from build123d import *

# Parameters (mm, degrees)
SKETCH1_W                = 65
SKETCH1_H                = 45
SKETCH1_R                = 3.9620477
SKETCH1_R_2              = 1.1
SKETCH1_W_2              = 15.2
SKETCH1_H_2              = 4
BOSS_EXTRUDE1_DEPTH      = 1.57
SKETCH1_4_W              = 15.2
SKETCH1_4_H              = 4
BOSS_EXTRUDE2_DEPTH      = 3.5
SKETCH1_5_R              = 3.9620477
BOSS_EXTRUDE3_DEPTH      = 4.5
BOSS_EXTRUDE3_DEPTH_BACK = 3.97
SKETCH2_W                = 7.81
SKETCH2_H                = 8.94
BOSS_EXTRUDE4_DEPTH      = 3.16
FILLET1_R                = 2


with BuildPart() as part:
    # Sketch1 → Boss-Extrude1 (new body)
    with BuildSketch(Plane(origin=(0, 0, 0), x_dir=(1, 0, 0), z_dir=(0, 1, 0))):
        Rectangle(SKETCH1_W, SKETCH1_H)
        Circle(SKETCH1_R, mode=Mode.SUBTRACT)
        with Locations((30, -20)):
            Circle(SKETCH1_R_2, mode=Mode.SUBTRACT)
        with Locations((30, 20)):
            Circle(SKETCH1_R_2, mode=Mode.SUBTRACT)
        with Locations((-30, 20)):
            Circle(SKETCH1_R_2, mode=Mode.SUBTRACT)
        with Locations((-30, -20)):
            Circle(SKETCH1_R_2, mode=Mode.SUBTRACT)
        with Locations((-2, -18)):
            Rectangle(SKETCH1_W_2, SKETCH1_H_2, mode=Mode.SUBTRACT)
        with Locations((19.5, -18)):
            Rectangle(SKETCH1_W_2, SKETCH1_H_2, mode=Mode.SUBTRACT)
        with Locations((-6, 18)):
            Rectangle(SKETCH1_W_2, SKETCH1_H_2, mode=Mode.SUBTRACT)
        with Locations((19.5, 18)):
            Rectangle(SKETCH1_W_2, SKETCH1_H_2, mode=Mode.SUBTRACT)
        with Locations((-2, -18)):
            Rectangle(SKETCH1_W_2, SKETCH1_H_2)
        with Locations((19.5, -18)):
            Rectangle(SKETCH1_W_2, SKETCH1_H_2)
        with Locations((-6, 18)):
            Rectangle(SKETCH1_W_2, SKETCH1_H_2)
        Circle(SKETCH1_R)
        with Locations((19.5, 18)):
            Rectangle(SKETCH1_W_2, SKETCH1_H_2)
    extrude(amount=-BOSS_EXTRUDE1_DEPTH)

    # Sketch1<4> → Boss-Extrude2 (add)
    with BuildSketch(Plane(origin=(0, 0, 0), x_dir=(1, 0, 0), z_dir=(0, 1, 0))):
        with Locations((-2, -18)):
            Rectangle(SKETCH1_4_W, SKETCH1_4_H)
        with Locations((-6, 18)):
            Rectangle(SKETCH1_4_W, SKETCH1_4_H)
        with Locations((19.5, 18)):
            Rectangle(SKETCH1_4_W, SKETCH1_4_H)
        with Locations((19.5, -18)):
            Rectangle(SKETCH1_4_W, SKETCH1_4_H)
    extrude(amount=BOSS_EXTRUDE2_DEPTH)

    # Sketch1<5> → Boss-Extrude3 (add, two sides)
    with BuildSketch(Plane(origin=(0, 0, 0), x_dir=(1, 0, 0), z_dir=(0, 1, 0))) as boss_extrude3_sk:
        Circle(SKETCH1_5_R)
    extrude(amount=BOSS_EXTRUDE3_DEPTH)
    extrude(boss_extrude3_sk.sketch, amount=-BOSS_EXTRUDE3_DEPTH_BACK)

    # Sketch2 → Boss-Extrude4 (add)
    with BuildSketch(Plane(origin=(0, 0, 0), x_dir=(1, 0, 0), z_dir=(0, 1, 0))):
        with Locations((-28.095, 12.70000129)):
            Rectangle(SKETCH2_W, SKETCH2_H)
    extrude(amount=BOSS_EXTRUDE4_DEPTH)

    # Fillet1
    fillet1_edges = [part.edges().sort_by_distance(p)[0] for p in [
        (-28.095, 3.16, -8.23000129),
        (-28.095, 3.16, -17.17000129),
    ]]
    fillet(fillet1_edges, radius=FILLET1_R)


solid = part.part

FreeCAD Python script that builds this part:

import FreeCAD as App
import Part
import Sketcher

V = App.Vector


def edges_at(feature, points):
    """Names of the edges that pass closest to the given points."""
    edges = feature.Shape.Edges
    near = lambda p: min(range(len(edges)), key=lambda i: edges[i].distToShape(Part.Vertex(*p))[0])
    return sorted({f"Edge{near(p) + 1}" for p in points})


def add_polygon(sketch, points):
    """Adds a closed chain of lines whose ends are joined by coincident constraints."""
    first, n = sketch.GeometryCount, len(points)
    for a, b in zip(points, points[1:] + points[:1]):
        sketch.addGeometry(Part.LineSegment(App.Vector(*a, 0), App.Vector(*b, 0)), False)
    for i in range(n):
        sketch.addConstraint(Sketcher.Constraint("Coincident", first + i, 2, first + (i + 1) % n, 1))

doc = App.newDocument("Part")
params = doc.addObject("Spreadsheet::Sheet", "Params")
for row, (alias, value) in enumerate([
    ("sketch1_diameter", "2.2 mm"),
    ("sketch1_width", "65 mm"),
    ("sketch1_height", "45 mm"),
    ("pad1_length", "1.57 mm"),
    ("sketch2_height", "4 mm"),
    ("sketch2_width", "15.2 mm"),
    ("pad2_length", "3.5 mm"),
    ("pad3_length", "4.5 mm"),
    ("pad3_length2", "3.97 mm"),
    ("sketch4_width", "7.81 mm"),
    ("sketch4_height", "8.94 mm"),
    ("pad4_length", "3.16 mm"),
    ("fillet_radius", "2 mm"),
], start=1):
    params.set(f"A{row}", alias)
    params.set(f"B{row}", "=" + value)
    params.setAlias(f"B{row}", alias)

body = doc.addObject("PartDesign::Body", "Body")

sketch1 = body.newObject("Sketcher::SketchObject", "Sketch")
sketch1.AttachmentSupport = (doc.getObject("XZ_Plane"), [""])
sketch1.MapMode = "FlatFace"
add_polygon(sketch1, [(-32.5, -22.5), (-32.5, 22.5), (32.5, 22.5), (32.5, -22.5)])
sketch1.addGeometry(Part.Circle(V(-30, 20, 0), V(0, 0, 1), 1.1), False)
sketch1.addGeometry(Part.Circle(V(30, 20, 0), V(0, 0, 1), 1.1), False)
sketch1.addGeometry(Part.Circle(V(-30, -20, 0), V(0, 0, 1), 1.1), False)
sketch1.addGeometry(Part.Circle(V(30, -20, 0), V(0, 0, 1), 1.1), False)
sketch1.addConstraint(Sketcher.Constraint("Vertical", 0))
sketch1.addConstraint(Sketcher.Constraint("Horizontal", 1))
sketch1.addConstraint(Sketcher.Constraint("Vertical", 2))
sketch1.addConstraint(Sketcher.Constraint("Horizontal", 3))
sketch1.addConstraint(Sketcher.Constraint("Equal", 4, 5))
sketch1.addConstraint(Sketcher.Constraint("Equal", 5, 6))
sketch1.addConstraint(Sketcher.Constraint("Equal", 6, 7))
sketch1.addConstraint(Sketcher.Constraint("Symmetric", 5, 3, 6, 3, -1, 1))
sketch1.addConstraint(Sketcher.Constraint("Symmetric", 4, 3, 7, 3, -1, 1))
sketch1.addConstraint(Sketcher.Constraint("Symmetric", 0, 2, 2, 2, -1, 1))
sketch1.addConstraint(Sketcher.Constraint("Symmetric", 4, 3, 5, 3, -2))
sketch1.addConstraint(Sketcher.Constraint("Diameter", 4, 2.2))
sketch1.addConstraint(Sketcher.Constraint("DistanceX", 1, 1, 1, 2, 65.0))
sketch1.addConstraint(Sketcher.Constraint("DistanceY", 0, 1, 0, 2, 45.0))
sketch1.addConstraint(Sketcher.Constraint("DistanceX", 4, 3, -1, 1, 30.0))
sketch1.addConstraint(Sketcher.Constraint("DistanceY", -1, 1, 4, 3, 20.0))
sketch1.setExpression("Constraints[15]", "Params.sketch1_diameter")
sketch1.setExpression("Constraints[16]", "Params.sketch1_width")
sketch1.setExpression("Constraints[17]", "Params.sketch1_height")
pad1 = body.newObject("PartDesign::Pad", "Pad")
pad1.Profile = sketch1
pad1.setExpression("Length", "Params.pad1_length")

sketch2 = body.newObject("Sketcher::SketchObject", "Sketch001")
sketch2.AttachmentSupport = (doc.getObject("XZ_Plane"), [""])
sketch2.MapMode = "FlatFace"
add_polygon(sketch2, [(-9.6, 16), (-9.6, 20), (5.6, 20), (5.6, 16)])
add_polygon(sketch2, [(-13.6, -20), (-13.6, -16), (1.6, -16), (1.6, -20)])
add_polygon(sketch2, [(11.9, -20), (11.9, -16), (27.1, -16), (27.1, -20)])
add_polygon(sketch2, [(11.9, 16), (11.9, 20), (27.1, 20), (27.1, 16)])
sketch2.addConstraint(Sketcher.Constraint("Vertical", 0))
sketch2.addConstraint(Sketcher.Constraint("Horizontal", 1))
sketch2.addConstraint(Sketcher.Constraint("Vertical", 2))
sketch2.addConstraint(Sketcher.Constraint("Horizontal", 3))
sketch2.addConstraint(Sketcher.Constraint("Vertical", 4))
sketch2.addConstraint(Sketcher.Constraint("Horizontal", 5))
sketch2.addConstraint(Sketcher.Constraint("Vertical", 6))
sketch2.addConstraint(Sketcher.Constraint("Horizontal", 7))
sketch2.addConstraint(Sketcher.Constraint("Vertical", 8))
sketch2.addConstraint(Sketcher.Constraint("Horizontal", 9))
sketch2.addConstraint(Sketcher.Constraint("Vertical", 10))
sketch2.addConstraint(Sketcher.Constraint("Horizontal", 11))
sketch2.addConstraint(Sketcher.Constraint("Vertical", 12))
sketch2.addConstraint(Sketcher.Constraint("Horizontal", 13))
sketch2.addConstraint(Sketcher.Constraint("Vertical", 14))
sketch2.addConstraint(Sketcher.Constraint("Horizontal", 15))
sketch2.addConstraint(Sketcher.Constraint("Symmetric", 11, 2, 12, 2, -1))
sketch2.addConstraint(Sketcher.Constraint("Symmetric", 9, 2, 14, 2, -1))
sketch2.addConstraint(Sketcher.Constraint("Horizontal", 5, 2, 8, 2))
sketch2.addConstraint(Sketcher.Constraint("Horizontal", 7, 2, 10, 2))
sketch2.addConstraint(Sketcher.Constraint("Horizontal", 1, 2, 12, 2))
sketch2.addConstraint(Sketcher.Constraint("Horizontal", 3, 2, 14, 2))
sketch2.addConstraint(Sketcher.Constraint("Equal", 3, 5))
sketch2.addConstraint(Sketcher.Constraint("Equal", 7, 9))
sketch2.addConstraint(Sketcher.Constraint("DistanceY", 0, 1, 0, 2, 4.0))
sketch2.addConstraint(Sketcher.Constraint("DistanceX", 1, 1, 1, 2, 15.2))
sketch2.addConstraint(Sketcher.Constraint("DistanceY", -1, 1, 0, 2, 20.0))
sketch2.addConstraint(Sketcher.Constraint("DistanceX", 4, 2, 3, 2, 4.0))
sketch2.addConstraint(Sketcher.Constraint("DistanceX", 0, 2, -1, 1, 9.6))
sketch2.addConstraint(Sketcher.Constraint("DistanceX", -1, 1, 8, 2, 11.9))
sketch2.setExpression("Constraints[40]", "Params.sketch2_height")
sketch2.setExpression("Constraints[41]", "Params.sketch2_width")
pad2 = body.newObject("PartDesign::Pad", "Pad001")
pad2.Profile = sketch2
pad2.setExpression("Length", "Params.pad2_length")
pad2.Reversed = True

sketch3 = body.newObject("Sketcher::SketchObject", "Sketch002")
sketch3.AttachmentSupport = (doc.getObject("XZ_Plane"), [""])
sketch3.MapMode = "FlatFace"
sketch3.addGeometry(Part.Circle(V(0, 0, 0), V(0, 0, 1), 4), False)
sketch3.addConstraint(Sketcher.Constraint("Coincident", 0, 3, -1, 1))
sketch3.addConstraint(Sketcher.Constraint("Diameter", 0, 7.924095))
pad3 = body.newObject("PartDesign::Pad", "Pad002")
pad3.Profile = sketch3
pad3.Type = "TwoLengths"
pad3.setExpression("Length", "Params.pad3_length")
pad3.setExpression("Length2", "Params.pad3_length2")
pad3.Reversed = True

sketch4 = body.newObject("Sketcher::SketchObject", "Sketch003")
sketch4.AttachmentSupport = (doc.getObject("XZ_Plane"), [""])
sketch4.MapMode = "FlatFace"
add_polygon(sketch4, [(-32, -17), (-32, -8), (-24, -8), (-24, -17)])
sketch4.addConstraint(Sketcher.Constraint("Vertical", 0))
sketch4.addConstraint(Sketcher.Constraint("Horizontal", 1))
sketch4.addConstraint(Sketcher.Constraint("Vertical", 2))
sketch4.addConstraint(Sketcher.Constraint("Horizontal", 3))
sketch4.addConstraint(Sketcher.Constraint("DistanceX", 0, 2, -1, 1, 32.0))
sketch4.addConstraint(Sketcher.Constraint("DistanceX", 1, 1, 1, 2, 7.81))
sketch4.addConstraint(Sketcher.Constraint("DistanceY", 0, 1, 0, 2, 8.94))
sketch4.addConstraint(Sketcher.Constraint("DistanceY", 0, 2, -1, 1, 8.230001))
sketch4.setExpression("Constraints[9]", "Params.sketch4_width")
sketch4.setExpression("Constraints[10]", "Params.sketch4_height")
pad4 = body.newObject("PartDesign::Pad", "Pad003")
pad4.Profile = sketch4
pad4.setExpression("Length", "Params.pad4_length")
pad4.Reversed = True
doc.recompute()

fillet = body.newObject("PartDesign::Fillet", "Fillet")
fillet.Base = (pad4, edges_at(pad4, [(-28.095, 3.16, -8.23), (-28.095, 3.16, -17.17)]))
fillet.setExpression("Radius", "Params.fillet_radius")

doc.recompute()
